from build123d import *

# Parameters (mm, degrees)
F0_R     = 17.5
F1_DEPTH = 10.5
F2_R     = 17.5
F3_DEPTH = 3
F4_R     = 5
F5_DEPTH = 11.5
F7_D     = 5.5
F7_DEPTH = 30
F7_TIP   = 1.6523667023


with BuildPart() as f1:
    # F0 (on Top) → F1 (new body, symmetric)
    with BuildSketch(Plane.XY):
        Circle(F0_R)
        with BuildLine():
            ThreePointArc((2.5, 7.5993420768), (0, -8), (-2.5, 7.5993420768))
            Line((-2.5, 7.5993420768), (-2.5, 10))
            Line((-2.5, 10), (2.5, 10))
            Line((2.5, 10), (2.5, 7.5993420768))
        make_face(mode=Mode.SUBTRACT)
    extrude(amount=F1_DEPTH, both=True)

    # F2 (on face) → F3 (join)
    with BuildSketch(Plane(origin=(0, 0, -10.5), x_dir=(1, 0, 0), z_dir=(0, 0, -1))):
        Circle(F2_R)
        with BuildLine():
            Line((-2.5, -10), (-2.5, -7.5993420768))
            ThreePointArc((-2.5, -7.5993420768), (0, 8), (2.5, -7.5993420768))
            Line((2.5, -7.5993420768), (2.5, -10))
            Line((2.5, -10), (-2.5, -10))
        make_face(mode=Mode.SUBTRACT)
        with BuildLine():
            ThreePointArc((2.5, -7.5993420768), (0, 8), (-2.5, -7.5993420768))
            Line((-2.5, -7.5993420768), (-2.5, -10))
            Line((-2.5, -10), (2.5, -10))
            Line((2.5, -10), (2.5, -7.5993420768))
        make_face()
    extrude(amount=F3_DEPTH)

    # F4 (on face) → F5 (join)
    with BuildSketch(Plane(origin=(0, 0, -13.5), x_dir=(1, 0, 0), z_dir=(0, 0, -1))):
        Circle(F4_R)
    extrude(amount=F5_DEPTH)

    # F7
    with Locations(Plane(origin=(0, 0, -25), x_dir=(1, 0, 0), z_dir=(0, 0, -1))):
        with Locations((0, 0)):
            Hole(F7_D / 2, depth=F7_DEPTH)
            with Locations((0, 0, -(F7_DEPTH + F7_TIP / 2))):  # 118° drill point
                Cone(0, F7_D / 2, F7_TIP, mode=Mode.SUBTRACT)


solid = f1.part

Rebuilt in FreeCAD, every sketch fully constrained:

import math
import FreeCAD as App
import Part
import Sketcher

V = App.Vector

doc = App.newDocument("Part")
body = doc.addObject("PartDesign::Body", "Body")

sketch1 = body.newObject("Sketcher::SketchObject", "Sketch")
sketch1.AttachmentSupport = (doc.getObject("XY_Plane"), [""])
sketch1.MapMode = "FlatFace"
sketch1.addGeometry([
    Part.Circle(V(0, 0, 0), V(0, 0, 1), 17.5),
    Part.LineSegment(V(2.5, 10, 0), V(2.5, 7.6, 0)),
    Part.ArcOfCircle(Part.Circle(V(0, 0, 0), V(0, 0, 1), 8), math.radians(108), math.radians(432)),
    Part.LineSegment(V(-2.5, 7.6, 0), V(-2.5, 10, 0)),
    Part.LineSegment(V(-2.5, 10, 0), V(2.5, 10, 0)),
], False)
sketch1.addConstraint([
    Sketcher.Constraint("Coincident", 1, 2, 2, 2),
    Sketcher.Constraint("Coincident", 2, 1, 3, 1),
    Sketcher.Constraint("Coincident", 3, 2, 4, 1),
    Sketcher.Constraint("Coincident", 4, 2, 1, 1),
    Sketcher.Constraint("Vertical", 1),
    Sketcher.Constraint("Vertical", 3),
    Sketcher.Constraint("Horizontal", 4),
    Sketcher.Constraint("Coincident", 0, 3, -1, 1),
    Sketcher.Constraint("Coincident", 2, 3, -1, 1),
    Sketcher.Constraint("Horizontal", 1, 2, 2, 1),
    Sketcher.Constraint("Diameter", 0, 35.0),
    Sketcher.Constraint("Radius", 2, 8.0),
    Sketcher.Constraint("DistanceX", 4, 1, 4, 2, 5.0),
    Sketcher.Constraint("DistanceY", -1, 1, 3, 2, 10.0),
])
pad1 = body.newObject("PartDesign::Pad", "Pad")
pad1.Profile = sketch1
pad1.Length = 21
pad1.Midplane = True

sketch2 = body.newObject("Sketcher::SketchObject", "Sketch001")
sketch2.AttachmentSupport = (doc.getObject("XY_Plane"), [""])
sketch2.MapMode = "FlatFace"
sketch2.AttachmentOffset = App.Placement(V(0, 0, -10.5), App.Rotation())
sketch2.addGeometry(Part.Circle(V(0, 0, 0), V(0, 0, 1), 18), False)
sketch2.addConstraint([
    Sketcher.Constraint("Coincident", 0, 3, -1, 1),
    Sketcher.Constraint("Diameter", 0, 35.0),
])
pad2 = body.newObject("PartDesign::Pad", "Pad001")
pad2.Profile = sketch2
pad2.Length = 3
pad2.Reversed = True

sketch3 = body.newObject("Sketcher::SketchObject", "Sketch002")
sketch3.AttachmentSupport = (doc.getObject("XY_Plane"), [""])
sketch3.MapMode = "FlatFace"
sketch3.AttachmentOffset = App.Placement(V(0, 0, -13.5), App.Rotation())
sketch3.addGeometry(Part.Circle(V(0, 0, 0), V(0, 0, 1), 5), False)
sketch3.addConstraint([
    Sketcher.Constraint("Coincident", 0, 3, -1, 1),
    Sketcher.Constraint("Diameter", 0, 10.0),
])
pad3 = body.newObject("PartDesign::Pad", "Pad002")
pad3.Profile = sketch3
pad3.Length = 11.5
pad3.Reversed = True

sketch4 = body.newObject("Sketcher::SketchObject", "Sketch003")
sketch4.AttachmentSupport = (doc.getObject("XY_Plane"), [""])
sketch4.MapMode = "FlatFace"
sketch4.AttachmentOffset = App.Placement(V(0, 0, -25), App.Rotation())
sketch4.addGeometry(Part.Circle(V(0, 0, 0), V(0, 0, 1), 2.8), False)
sketch4.addConstraint([
    Sketcher.Constraint("Coincident", 0, 3, -1, 1),
    Sketcher.Constraint("Diameter", 0, 5.5),
])
doc.recompute()
hole = body.newObject("PartDesign::Hole", "Hole")
hole.Profile = sketch4
hole.ThreadType = "None"
hole.Diameter = 5.5
hole.DepthType = "Dimension"
hole.Depth = 30
hole.DrillPoint = "Angled"
hole.DrillPointAngle = 118
hole.Reversed = True

doc.recompute()
